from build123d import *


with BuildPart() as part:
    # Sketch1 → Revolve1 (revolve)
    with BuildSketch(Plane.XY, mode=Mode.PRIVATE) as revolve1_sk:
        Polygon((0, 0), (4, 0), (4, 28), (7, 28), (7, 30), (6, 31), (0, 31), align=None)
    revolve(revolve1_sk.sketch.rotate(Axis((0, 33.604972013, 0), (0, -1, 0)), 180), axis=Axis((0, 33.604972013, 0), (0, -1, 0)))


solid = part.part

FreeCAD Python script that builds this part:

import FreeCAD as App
import Part
import Sketcher

V = App.Vector
Q = App.Units.Quantity


def add_polygon(sketch, points):
    """Adds a closed chain of lines whose ends are joined by coincident constraints."""
    first, n = sketch.GeometryCount, len(points)
    for a, b in zip(points, points[1:] + points[:1]):
        sketch.addGeometry(Part.LineSegment(App.Vector(*a, 0), App.Vector(*b, 0)), False)
    for i in range(n):
        sketch.addConstraint(Sketcher.Constraint("Coincident", first + i, 2, first + (i + 1) % n, 1))

doc = App.newDocument("Part")
body = doc.addObject("PartDesign::Body", "Body")

# Sketch on XY plane
sketch1 = body.newObject("Sketcher::SketchObject", "Sketch")
sketch1.AttachmentSupport = (doc.getObject("XY_Plane"), [""])
sketch1.MapMode = "FlatFace"
add_polygon(sketch1, [(0, 0), (4, 0), (4, 28), (7, 28), (7, 30), (6, 31), (0, 31)])  # lines 0-6
sketch1.addConstraint([
    Sketcher.Constraint("Horizontal", 0),
    Sketcher.Constraint("Vertical", 1),
    Sketcher.Constraint("Horizontal", 2),
    Sketcher.Constraint("Vertical", 3),
    Sketcher.Constraint("Horizontal", 5),
    Sketcher.Constraint("Vertical", 6),
    Sketcher.Constraint("Coincident", 6, 2, -1, 1),
    Sketcher.Constraint("DistanceX", 0, 1, 0, 2, Q("4 mm")),
    Sketcher.Constraint("DistanceX", 2, 1, 2, 2, Q("3 mm")),
    Sketcher.Constraint("DistanceX", 5, 2, 5, 1, Q("6 mm")),
    Sketcher.Constraint("DistanceY", 1, 1, 1, 2, Q("28 mm")),
    Sketcher.Constraint("DistanceY", 3, 1, 3, 2, Q("2 mm")),
    Sketcher.Constraint("DistanceY", 6, 2, 6, 1, Q("31 mm")),
])
revolution = body.newObject("PartDesign::Revolution", "Revolution")
revolution.Profile = sketch1
revolution.ReferenceAxis = (sketch1, ["V_Axis"])
revolution.Angle = 360

doc.recompute()
